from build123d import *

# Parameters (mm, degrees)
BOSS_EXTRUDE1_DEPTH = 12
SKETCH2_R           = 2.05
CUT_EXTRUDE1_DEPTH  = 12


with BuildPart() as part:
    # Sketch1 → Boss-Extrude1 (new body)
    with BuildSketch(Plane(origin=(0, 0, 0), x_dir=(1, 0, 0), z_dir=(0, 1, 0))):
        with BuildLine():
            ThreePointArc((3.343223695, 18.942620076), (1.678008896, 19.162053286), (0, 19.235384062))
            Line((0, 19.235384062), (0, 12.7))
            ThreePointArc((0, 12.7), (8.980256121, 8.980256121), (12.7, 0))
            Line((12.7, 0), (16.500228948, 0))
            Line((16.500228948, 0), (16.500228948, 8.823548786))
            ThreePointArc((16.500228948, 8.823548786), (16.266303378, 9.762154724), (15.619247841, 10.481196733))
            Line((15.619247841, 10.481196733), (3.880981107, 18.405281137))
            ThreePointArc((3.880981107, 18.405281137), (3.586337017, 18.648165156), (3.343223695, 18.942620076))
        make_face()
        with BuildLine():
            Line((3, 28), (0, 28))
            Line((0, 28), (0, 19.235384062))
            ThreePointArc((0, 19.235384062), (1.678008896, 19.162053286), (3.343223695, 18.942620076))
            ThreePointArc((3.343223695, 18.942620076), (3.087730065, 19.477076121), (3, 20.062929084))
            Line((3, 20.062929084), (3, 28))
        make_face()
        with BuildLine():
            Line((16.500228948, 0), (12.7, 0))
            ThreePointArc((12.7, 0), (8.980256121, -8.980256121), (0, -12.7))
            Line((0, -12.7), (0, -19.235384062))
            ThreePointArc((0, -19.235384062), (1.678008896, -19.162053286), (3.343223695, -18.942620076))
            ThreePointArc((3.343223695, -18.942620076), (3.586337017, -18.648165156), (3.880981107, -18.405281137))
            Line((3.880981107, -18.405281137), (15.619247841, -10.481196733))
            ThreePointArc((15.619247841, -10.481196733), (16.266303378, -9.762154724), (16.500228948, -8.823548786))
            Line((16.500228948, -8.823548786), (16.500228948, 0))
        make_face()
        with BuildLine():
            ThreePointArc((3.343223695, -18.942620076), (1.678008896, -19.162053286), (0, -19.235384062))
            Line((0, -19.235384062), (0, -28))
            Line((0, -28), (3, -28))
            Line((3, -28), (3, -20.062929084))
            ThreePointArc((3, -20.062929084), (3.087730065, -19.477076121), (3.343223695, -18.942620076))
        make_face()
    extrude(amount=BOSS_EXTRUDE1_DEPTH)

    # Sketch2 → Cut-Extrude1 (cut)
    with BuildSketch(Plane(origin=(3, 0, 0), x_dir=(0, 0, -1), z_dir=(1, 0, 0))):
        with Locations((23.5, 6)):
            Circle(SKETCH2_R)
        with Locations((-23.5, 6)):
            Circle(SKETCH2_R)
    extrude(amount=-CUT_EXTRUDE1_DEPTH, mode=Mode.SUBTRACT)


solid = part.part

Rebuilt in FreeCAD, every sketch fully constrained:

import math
import FreeCAD as App
import Part
import Sketcher
from FreeCAD import Vector

doc = App.newDocument("Part")
params = doc.addObject("Spreadsheet::Sheet", "Params")
for row, (alias, value) in enumerate([
    ("sketch1_radius", "2 mm"),
    ("sketch1_radius2", "12.7 mm"),
    ("sketch1_width", "3 mm"),
    ("sketch1_height", "15.3 mm"),
    ("pad1_length", "12 mm"),
    ("sketch2_diameter", "4.1 mm"),
    ("pocket1_length", "12 mm"),
], start=1):
    params.set(f"A{row}", alias)
    params.set(f"B{row}", "=" + value)
    params.setAlias(f"B{row}", alias)

body = doc.addObject("PartDesign::Body", "Body")

# Sketch on XZ plane
sketch1 = body.newObject("Sketcher::SketchObject", "Sketch")
sketch1.AttachmentSupport = (doc.getObject("XZ_Plane"), [""])
sketch1.MapMode = "FlatFace"
sketch1.addGeometry(Part.ArcOfCircle(Part.Circle(Vector(0, 0, 0), Vector(0, 0, 1), 12.7), math.radians(-90), math.radians(0)), False)
sketch1.addGeometry(Part.ArcOfCircle(Part.Circle(Vector(0, 0, 0), Vector(0, 0, 1), 12.7), math.radians(0), math.radians(90)), False)
sketch1.addGeometry(Part.LineSegment(Vector(0, 12.7, 0), Vector(0, 28, 0)), False)
sketch1.addGeometry(Part.LineSegment(Vector(0, 28, 0), Vector(3, 28, 0)), False)
sketch1.addGeometry(Part.LineSegment(Vector(3, 28, 0), Vector(3, 20.062929, 0)), False)
sketch1.addGeometry(Part.ArcOfCircle(Part.Circle(Vector(5, 20.062929, 0), Vector(0, 0, 1), 2), math.radians(-180), math.radians(-145.933517)), False)
sketch1.addGeometry(Part.ArcOfCircle(Part.Circle(Vector(5, 20.062929, 0), Vector(0, 0, 1), 2), math.radians(-145.933517), math.radians(-124.021879)), False)
sketch1.addGeometry(Part.LineSegment(Vector(3.880981, 18.405281, 0), Vector(15.619248, 10.481197, 0)), False)
sketch1.addGeometry(Part.ArcOfCircle(Part.Circle(Vector(14.500229, 8.823549, 0), Vector(0, 0, 1), 2), math.radians(0), math.radians(55.978121)), False)
sketch1.addGeometry(Part.LineSegment(Vector(16.500229, 8.823549, 0), Vector(16.500229, -8.823549, 0)), False)
sketch1.addGeometry(Part.ArcOfCircle(Part.Circle(Vector(14.500229, -8.823549, 0), Vector(0, 0, 1), 2), math.radians(-55.978121), math.radians(0)), False)
sketch1.addGeometry(Part.LineSegment(Vector(15.619248, -10.481197, 0), Vector(3.880981, -18.405281, 0)), False)
sketch1.addGeometry(Part.ArcOfCircle(Part.Circle(Vector(5, -20.062929, 0), Vector(0, 0, 1), 2), math.radians(124.021879), math.radians(145.933517)), False)
sketch1.addGeometry(Part.ArcOfCircle(Part.Circle(Vector(5, -20.062929, 0), Vector(0, 0, 1), 2), math.radians(145.933517), math.radians(180)), False)
sketch1.addGeometry(Part.LineSegment(Vector(3, -20.062929, 0), Vector(3, -28, 0)), False)
sketch1.addGeometry(Part.LineSegment(Vector(3, -28, 0), Vector(0, -28, 0)), False)
sketch1.addGeometry(Part.LineSegment(Vector(0, -28, 0), Vector(0, -12.7, 0)), False)
sketch1.addConstraint(Sketcher.Constraint("Tangent", 0, 2, 1, 1))
sketch1.addConstraint(Sketcher.Constraint("Coincident", 1, 2, 2, 1))
sketch1.addConstraint(Sketcher.Constraint("Coincident", 2, 2, 3, 1))
sketch1.addConstraint(Sketcher.Constraint("Coincident", 3, 2, 4, 1))
sketch1.addConstraint(Sketcher.Constraint("Tangent", 4, 2, 5, 1))
sketch1.addConstraint(Sketcher.Constraint("Tangent", 5, 2, 6, 1))
sketch1.addConstraint(Sketcher.Constraint("Tangent", 6, 2, 7, 1))
sketch1.addConstraint(Sketcher.Constraint("Tangent", 7, 2, 8, 2))
sketch1.addConstraint(Sketcher.Constraint("Tangent", 8, 1, 9, 1))
sketch1.addConstraint(Sketcher.Constraint("Tangent", 9, 2, 10, 2))
sketch1.addConstraint(Sketcher.Constraint("Tangent", 10, 1, 11, 1))
sketch1.addConstraint(Sketcher.Constraint("Tangent", 11, 2, 12, 1))
sketch1.addConstraint(Sketcher.Constraint("Tangent", 12, 2, 13, 1))
sketch1.addConstraint(Sketcher.Constraint("Tangent", 13, 2, 14, 1))
sketch1.addConstraint(Sketcher.Constraint("Coincident", 14, 2, 15, 1))
sketch1.addConstraint(Sketcher.Constraint("Coincident", 15, 2, 16, 1))
sketch1.addConstraint(Sketcher.Constraint("Coincident", 16, 2, 0, 1))
sketch1.addConstraint(Sketcher.Constraint("Vertical", 2))
sketch1.addConstraint(Sketcher.Constraint("Horizontal", 3))
sketch1.addConstraint(Sketcher.Constraint("Vertical", 4))
sketch1.addConstraint(Sketcher.Constraint("Vertical", 9))
sketch1.addConstraint(Sketcher.Constraint("Vertical", 14))
sketch1.addConstraint(Sketcher.Constraint("Horizontal", 15))
sketch1.addConstraint(Sketcher.Constraint("Vertical", 16))
sketch1.addConstraint(Sketcher.Constraint("Coincident", 0, 3, -1, 1))
sketch1.addConstraint(Sketcher.Constraint("Equal", 0, 1))
sketch1.addConstraint(Sketcher.Constraint("Equal", 5, 6))
sketch1.addConstraint(Sketcher.Constraint("Equal", 6, 8))
sketch1.addConstraint(Sketcher.Constraint("Equal", 8, 10))
sketch1.addConstraint(Sketcher.Constraint("Equal", 10, 12))
sketch1.addConstraint(Sketcher.Constraint("Equal", 12, 13))
sketch1.addConstraint(Sketcher.Constraint("Symmetric", 2, 2, 15, 2, -1, 1))
sketch1.addConstraint(Sketcher.Constraint("Symmetric", 5, 3, 12, 3, -1))
sketch1.addConstraint(Sketcher.Constraint("PointOnObject", 0, 2, -1))
sketch1.addConstraint(Sketcher.Constraint("PointOnObject", 1, 2, -2))
sketch1.addConstraint(Sketcher.Constraint("Vertical", 7, 2, 10, 1))
sketch1.addConstraint(Sketcher.Constraint("Vertical", 5, 2, 12, 2))
sketch1.addConstraint(Sketcher.Constraint("Radius", 5, 2.0))
sketch1.addConstraint(Sketcher.Constraint("Radius", 0, 12.7))
sketch1.addConstraint(Sketcher.Constraint("DistanceX", 3, 1, 3, 2, 3.0))
sketch1.addConstraint(Sketcher.Constraint("DistanceY", 2, 1, 2, 2, 15.3))
sketch1.addConstraint(Sketcher.Constraint("DistanceY", 4, 2, 4, 1, 7.937071))
sketch1.addConstraint(Sketcher.Constraint("DistanceY", 9, 2, 9, 1, 17.647098))
sketch1.addConstraint(Sketcher.Constraint("DistanceX", -1, 1, 8, 3, 14.500229))
sketch1.addConstraint(Sketcher.Constraint("DistanceY", -1, 1, 5, 2, 18.94262))
sketch1.setExpression("Constraints[37]", "Params.sketch1_radius")
sketch1.setExpression("Constraints[38]", "Params.sketch1_radius2")
sketch1.setExpression("Constraints[39]", "Params.sketch1_width")
sketch1.setExpression("Constraints[40]", "Params.sketch1_height")
pad1 = body.newObject("PartDesign::Pad", "Pad")
pad1.Profile = sketch1
pad1.setExpression("Length", "Params.pad1_length")
pad1.Reversed = True

# Sketch on YZ plane
sketch2 = body.newObject("Sketcher::SketchObject", "Sketch001")
sketch2.AttachmentSupport = (doc.getObject("YZ_Plane"), [""])
sketch2.MapMode = "FlatFace"
sketch2.AttachmentOffset = App.Placement(Vector(0, 0, 3), App.Rotation())
sketch2.addGeometry(Part.Circle(Vector(6, -23.5, 0), Vector(0, 0, 1), 2.05), False)
sketch2.addGeometry(Part.Circle(Vector(6, 23.5, 0), Vector(0, 0, 1), 2.05), False)
sketch2.addConstraint(Sketcher.Constraint("Equal", 0, 1))
sketch2.addConstraint(Sketcher.Constraint("Symmetric", 0, 3, 1, 3, -1))
sketch2.addConstraint(Sketcher.Constraint("Diameter", 0, 4.1))
sketch2.addConstraint(Sketcher.Constraint("DistanceX", -1, 1, 0, 3, 6.0))
sketch2.addConstraint(Sketcher.Constraint("DistanceY", 0, 3, 1, 3, 47.0))
sketch2.setExpression("Constraints[2]", "Params.sketch2_diameter")
pocket1 = body.newObject("PartDesign::Pocket", "Pocket")
pocket1.Profile = sketch2
pocket1.setExpression("Length", "Params.pocket1_length")

doc.recompute()
